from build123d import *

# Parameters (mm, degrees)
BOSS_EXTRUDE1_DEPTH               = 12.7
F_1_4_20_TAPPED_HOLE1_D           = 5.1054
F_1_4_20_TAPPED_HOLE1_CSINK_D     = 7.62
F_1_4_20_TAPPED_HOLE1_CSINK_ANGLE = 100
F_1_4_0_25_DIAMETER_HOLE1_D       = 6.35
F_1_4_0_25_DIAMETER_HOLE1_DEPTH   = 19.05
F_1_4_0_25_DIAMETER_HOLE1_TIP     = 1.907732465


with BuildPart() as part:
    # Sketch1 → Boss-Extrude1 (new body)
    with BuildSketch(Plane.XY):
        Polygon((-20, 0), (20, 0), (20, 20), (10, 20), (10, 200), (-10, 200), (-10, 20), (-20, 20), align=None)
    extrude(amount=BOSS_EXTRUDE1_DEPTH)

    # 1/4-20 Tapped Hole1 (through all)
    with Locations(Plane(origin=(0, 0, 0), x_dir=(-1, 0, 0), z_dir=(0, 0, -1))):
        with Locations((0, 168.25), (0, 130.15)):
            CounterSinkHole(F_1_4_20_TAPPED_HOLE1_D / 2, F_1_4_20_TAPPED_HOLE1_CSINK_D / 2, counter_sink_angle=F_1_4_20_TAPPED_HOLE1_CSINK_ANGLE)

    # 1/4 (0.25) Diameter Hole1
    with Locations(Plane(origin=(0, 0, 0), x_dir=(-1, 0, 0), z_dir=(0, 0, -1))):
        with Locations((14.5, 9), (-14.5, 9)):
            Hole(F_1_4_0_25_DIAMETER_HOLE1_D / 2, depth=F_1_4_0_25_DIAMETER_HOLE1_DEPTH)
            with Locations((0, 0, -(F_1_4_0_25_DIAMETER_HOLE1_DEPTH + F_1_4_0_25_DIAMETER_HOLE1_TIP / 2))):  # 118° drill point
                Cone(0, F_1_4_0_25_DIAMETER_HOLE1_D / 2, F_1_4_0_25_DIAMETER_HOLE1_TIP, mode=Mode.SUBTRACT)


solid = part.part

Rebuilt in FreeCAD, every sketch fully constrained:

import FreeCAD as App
import Part
import Sketcher
from FreeCAD import Vector


def add_polygon(sketch, points):
    """Adds a closed chain of lines whose ends are joined by coincident constraints."""
    first, n = sketch.GeometryCount, len(points)
    for a, b in zip(points, points[1:] + points[:1]):
        sketch.addGeometry(Part.LineSegment(App.Vector(*a, 0), App.Vector(*b, 0)), False)
    for i in range(n):
        sketch.addConstraint(Sketcher.Constraint("Coincident", first + i, 2, first + (i + 1) % n, 1))

doc = App.newDocument("Part")
body = doc.addObject("PartDesign::Body", "Body")

# Sketch on XY plane
sketch1 = body.newObject("Sketcher::SketchObject", "Sketch")
sketch1.AttachmentSupport = (doc.getObject("XY_Plane"), [""])
sketch1.MapMode = "FlatFace"
add_polygon(sketch1, [(-20, 0), (20, 0), (20, 20), (10, 20), (10, 200), (-10, 200), (-10, 20), (-20, 20)])  # lines 0-7
sketch1.addConstraint(Sketcher.Constraint("Horizontal", 0))
sketch1.addConstraint(Sketcher.Constraint("Vertical", 1))
sketch1.addConstraint(Sketcher.Constraint("Horizontal", 2))
sketch1.addConstraint(Sketcher.Constraint("Vertical", 3))
sketch1.addConstraint(Sketcher.Constraint("Horizontal", 4))
sketch1.addConstraint(Sketcher.Constraint("Vertical", 5))
sketch1.addConstraint(Sketcher.Constraint("Horizontal", 6))
sketch1.addConstraint(Sketcher.Constraint("Vertical", 7))
sketch1.addConstraint(Sketcher.Constraint("Symmetric", 0, 2, 7, 2, -1, 1))
sketch1.addConstraint(Sketcher.Constraint("Symmetric", 2, 2, 5, 2, -2))
sketch1.addConstraint(Sketcher.Constraint("Equal", 4, 1))
sketch1.addConstraint(Sketcher.Constraint("DistanceX", 0, 1, 0, 2, 40.0))
sketch1.addConstraint(Sketcher.Constraint("DistanceX", 2, 2, 2, 1, 10.0))
sketch1.addConstraint(Sketcher.Constraint("DistanceY", 3, 1, 3, 2, 180.0))
pad1 = body.newObject("PartDesign::Pad", "Pad")
pad1.Profile = sketch1
pad1.Length = 12.7

# Sketch on XY plane
sketch2 = body.newObject("Sketcher::SketchObject", "Sketch001")
sketch2.AttachmentSupport = (doc.getObject("XY_Plane"), [""])
sketch2.MapMode = "FlatFace"
sketch2.addGeometry(Part.Circle(Vector(0, 168.2, 0), Vector(0, 0, 1), 2.6), False)
sketch2.addGeometry(Part.Circle(Vector(0, 130.2, 0), Vector(0, 0, 1), 2.6), False)
sketch2.addConstraint(Sketcher.Constraint("Equal", 0, 1))
sketch2.addConstraint(Sketcher.Constraint("PointOnObject", 0, 3, -2))
sketch2.addConstraint(Sketcher.Constraint("PointOnObject", 1, 3, -2))
sketch2.addConstraint(Sketcher.Constraint("Diameter", 0, 5.1054))
sketch2.addConstraint(Sketcher.Constraint("DistanceY", 1, 3, 0, 3, 38.1))
sketch2.addConstraint(Sketcher.Constraint("DistanceY", -1, 1, 0, 3, 168.25))
doc.recompute()
hole = body.newObject("PartDesign::Hole", "Hole")
hole.Profile = sketch2
hole.ThreadType = "None"
hole.Diameter = 5.1054
hole.DepthType = "ThroughAll"
hole.HoleCutType = "Countersink"
hole.HoleCutDiameter = 7.62
hole.HoleCutCountersinkAngle = 100
hole.Reversed = True

# Sketch on XY plane
sketch3 = body.newObject("Sketcher::SketchObject", "Sketch002")
sketch3.AttachmentSupport = (doc.getObject("XY_Plane"), [""])
sketch3.MapMode = "FlatFace"
sketch3.addGeometry(Part.Circle(Vector(-14.5, 9, 0), Vector(0, 0, 1), 3.2), False)
sketch3.addGeometry(Part.Circle(Vector(14.5, 9, 0), Vector(0, 0, 1), 3.2), False)
sketch3.addConstraint(Sketcher.Constraint("Equal", 0, 1))
sketch3.addConstraint(Sketcher.Constraint("Symmetric", 0, 3, 1, 3, -2))
sketch3.addConstraint(Sketcher.Constraint("Diameter", 0, 6.35))
sketch3.addConstraint(Sketcher.Constraint("DistanceY", -1, 1, 0, 3, 9.0))
sketch3.addConstraint(Sketcher.Constraint("DistanceX", 0, 3, 1, 3, 29.0))
doc.recompute()
hole2 = body.newObject("PartDesign::Hole", "Hole001")
hole2.Profile = sketch3
hole2.ThreadType = "None"
hole2.Diameter = 6.35
hole2.DepthType = "Dimension"
hole2.Depth = 19.05
hole2.DrillPoint = "Angled"
hole2.DrillPointAngle = 118
hole2.Reversed = True

doc.recompute()
